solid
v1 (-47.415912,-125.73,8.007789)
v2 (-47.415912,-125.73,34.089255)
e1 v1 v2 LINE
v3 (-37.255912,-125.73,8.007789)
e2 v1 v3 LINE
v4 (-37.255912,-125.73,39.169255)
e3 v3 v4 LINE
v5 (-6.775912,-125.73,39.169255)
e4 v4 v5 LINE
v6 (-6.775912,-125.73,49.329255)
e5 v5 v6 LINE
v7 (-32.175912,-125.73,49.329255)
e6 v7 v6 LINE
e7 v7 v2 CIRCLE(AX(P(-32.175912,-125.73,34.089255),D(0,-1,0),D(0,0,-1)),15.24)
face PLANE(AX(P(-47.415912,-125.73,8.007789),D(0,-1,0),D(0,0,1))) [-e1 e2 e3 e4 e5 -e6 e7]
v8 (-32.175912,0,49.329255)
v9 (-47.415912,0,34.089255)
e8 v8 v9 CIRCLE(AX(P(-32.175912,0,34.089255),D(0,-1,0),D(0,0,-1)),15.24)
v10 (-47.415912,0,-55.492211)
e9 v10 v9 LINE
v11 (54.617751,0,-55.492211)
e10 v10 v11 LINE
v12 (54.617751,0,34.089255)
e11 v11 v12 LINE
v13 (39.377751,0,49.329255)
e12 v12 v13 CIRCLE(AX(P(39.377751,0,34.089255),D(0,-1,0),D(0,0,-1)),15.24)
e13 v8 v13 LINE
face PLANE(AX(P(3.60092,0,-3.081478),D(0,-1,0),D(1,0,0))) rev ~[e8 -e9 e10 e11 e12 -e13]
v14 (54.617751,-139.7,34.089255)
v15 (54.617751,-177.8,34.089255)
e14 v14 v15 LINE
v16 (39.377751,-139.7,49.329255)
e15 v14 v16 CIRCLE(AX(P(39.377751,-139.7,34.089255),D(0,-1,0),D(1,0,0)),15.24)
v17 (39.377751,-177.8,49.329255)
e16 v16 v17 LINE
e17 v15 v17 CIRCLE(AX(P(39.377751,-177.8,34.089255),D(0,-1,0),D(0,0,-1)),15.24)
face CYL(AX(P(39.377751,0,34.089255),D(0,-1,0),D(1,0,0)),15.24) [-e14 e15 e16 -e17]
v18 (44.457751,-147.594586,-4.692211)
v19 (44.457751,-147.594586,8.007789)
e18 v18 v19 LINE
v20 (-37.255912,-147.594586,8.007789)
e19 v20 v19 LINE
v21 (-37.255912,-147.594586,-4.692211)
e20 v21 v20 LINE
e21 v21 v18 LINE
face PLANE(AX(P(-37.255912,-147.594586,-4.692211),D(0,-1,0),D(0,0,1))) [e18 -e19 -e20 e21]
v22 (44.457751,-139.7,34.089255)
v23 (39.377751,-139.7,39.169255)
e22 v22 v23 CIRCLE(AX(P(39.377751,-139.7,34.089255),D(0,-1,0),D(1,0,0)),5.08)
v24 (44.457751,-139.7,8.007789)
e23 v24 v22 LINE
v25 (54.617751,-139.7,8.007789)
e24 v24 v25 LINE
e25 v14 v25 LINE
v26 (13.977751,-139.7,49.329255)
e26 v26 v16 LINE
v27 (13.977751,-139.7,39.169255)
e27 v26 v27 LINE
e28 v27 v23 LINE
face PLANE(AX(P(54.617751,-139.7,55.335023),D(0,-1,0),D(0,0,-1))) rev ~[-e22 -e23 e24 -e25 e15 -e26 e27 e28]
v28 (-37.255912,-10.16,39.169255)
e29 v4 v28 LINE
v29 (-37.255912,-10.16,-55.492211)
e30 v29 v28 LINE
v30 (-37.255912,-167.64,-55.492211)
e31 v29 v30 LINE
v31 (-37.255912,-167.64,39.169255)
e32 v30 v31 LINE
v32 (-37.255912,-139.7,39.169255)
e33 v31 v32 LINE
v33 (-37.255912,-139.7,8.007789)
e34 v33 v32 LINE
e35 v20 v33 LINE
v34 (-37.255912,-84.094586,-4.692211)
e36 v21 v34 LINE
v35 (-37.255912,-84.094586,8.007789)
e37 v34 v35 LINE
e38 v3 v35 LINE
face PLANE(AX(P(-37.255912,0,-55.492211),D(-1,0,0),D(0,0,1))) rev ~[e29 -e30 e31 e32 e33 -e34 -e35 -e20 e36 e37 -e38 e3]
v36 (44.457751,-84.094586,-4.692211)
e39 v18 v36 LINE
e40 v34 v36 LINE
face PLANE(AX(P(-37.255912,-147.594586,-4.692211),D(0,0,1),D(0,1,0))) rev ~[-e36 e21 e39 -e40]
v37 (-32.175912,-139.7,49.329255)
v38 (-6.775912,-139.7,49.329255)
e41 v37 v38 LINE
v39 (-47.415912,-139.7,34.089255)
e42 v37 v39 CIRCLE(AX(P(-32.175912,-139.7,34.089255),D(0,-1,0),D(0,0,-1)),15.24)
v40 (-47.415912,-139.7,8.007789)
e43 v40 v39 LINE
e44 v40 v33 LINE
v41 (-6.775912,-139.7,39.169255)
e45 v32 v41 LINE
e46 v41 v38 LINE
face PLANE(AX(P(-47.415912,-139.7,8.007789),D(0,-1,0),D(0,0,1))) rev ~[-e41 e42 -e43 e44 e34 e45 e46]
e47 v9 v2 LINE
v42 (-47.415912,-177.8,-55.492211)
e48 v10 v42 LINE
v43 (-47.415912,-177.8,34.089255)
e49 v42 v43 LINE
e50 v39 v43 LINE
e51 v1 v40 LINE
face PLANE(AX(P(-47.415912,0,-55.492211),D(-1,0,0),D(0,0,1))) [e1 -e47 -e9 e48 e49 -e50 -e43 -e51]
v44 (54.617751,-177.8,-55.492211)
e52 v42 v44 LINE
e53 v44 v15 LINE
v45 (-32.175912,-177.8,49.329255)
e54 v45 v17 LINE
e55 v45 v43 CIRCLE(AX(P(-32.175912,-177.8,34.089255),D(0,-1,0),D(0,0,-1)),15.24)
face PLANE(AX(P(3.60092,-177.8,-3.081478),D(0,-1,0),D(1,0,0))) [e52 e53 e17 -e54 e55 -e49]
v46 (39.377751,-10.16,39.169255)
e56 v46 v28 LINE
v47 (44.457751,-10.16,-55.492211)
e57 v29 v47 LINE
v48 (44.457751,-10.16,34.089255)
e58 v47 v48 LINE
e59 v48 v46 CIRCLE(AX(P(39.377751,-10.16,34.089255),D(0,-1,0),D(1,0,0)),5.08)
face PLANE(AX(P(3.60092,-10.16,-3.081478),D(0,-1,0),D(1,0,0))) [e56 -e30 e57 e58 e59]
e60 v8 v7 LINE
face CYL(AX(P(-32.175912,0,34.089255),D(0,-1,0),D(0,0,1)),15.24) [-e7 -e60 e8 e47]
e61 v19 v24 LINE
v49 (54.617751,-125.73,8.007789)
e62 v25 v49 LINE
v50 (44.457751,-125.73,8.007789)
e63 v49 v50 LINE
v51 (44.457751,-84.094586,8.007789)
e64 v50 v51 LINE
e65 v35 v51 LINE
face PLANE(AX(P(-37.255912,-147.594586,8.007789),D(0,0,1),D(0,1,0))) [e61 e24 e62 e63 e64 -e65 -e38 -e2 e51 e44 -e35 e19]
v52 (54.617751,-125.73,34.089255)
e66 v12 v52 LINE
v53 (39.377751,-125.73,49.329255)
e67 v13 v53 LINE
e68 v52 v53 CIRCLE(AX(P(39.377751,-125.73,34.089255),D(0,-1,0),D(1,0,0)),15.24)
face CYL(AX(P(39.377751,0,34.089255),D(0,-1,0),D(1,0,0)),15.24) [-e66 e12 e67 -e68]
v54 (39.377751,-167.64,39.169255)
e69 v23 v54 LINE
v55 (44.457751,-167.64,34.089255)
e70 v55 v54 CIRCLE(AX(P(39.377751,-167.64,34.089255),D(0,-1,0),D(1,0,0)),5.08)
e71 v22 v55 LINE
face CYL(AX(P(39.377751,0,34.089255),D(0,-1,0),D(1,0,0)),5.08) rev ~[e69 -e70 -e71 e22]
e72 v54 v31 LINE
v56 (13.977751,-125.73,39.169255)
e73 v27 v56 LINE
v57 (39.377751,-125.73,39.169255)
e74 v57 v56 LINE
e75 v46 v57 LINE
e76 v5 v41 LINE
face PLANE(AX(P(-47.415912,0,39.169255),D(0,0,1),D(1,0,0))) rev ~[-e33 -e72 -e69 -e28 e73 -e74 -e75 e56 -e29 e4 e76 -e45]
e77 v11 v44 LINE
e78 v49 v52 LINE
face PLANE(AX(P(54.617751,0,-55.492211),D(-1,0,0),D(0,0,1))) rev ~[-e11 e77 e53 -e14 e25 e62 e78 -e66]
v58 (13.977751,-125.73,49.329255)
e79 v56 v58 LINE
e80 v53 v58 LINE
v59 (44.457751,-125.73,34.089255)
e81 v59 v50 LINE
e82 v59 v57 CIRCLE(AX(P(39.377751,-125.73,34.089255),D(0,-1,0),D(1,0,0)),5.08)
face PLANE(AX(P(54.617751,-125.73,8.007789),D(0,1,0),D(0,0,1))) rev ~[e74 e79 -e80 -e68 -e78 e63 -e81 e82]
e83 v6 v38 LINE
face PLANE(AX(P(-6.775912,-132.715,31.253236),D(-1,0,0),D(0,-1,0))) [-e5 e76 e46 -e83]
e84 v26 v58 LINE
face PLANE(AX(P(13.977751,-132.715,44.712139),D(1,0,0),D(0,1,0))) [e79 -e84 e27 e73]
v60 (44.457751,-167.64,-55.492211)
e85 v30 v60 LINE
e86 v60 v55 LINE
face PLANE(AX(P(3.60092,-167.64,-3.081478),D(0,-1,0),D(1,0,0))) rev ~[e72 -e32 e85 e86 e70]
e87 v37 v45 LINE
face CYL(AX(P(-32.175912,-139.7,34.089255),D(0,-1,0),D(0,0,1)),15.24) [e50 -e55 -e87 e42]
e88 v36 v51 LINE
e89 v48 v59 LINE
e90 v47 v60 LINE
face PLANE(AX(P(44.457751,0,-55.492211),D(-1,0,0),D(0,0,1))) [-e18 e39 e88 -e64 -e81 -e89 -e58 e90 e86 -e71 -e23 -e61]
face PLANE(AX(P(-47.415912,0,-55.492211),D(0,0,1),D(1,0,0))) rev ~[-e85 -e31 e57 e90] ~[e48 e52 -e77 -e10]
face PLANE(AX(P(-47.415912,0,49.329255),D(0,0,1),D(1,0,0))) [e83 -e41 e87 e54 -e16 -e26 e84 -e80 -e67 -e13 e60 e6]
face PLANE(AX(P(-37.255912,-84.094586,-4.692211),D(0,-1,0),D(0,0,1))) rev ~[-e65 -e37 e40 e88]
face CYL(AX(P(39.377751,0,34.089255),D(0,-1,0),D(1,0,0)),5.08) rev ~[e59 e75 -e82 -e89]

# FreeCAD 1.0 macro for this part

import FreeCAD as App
import Part
import Sketcher

V = App.Vector
Q = App.Units.Quantity


def edges_at(feature, points):
    """Names of the edges that pass closest to the given points."""
    edges = feature.Shape.Edges
    near = lambda p: min(range(len(edges)), key=lambda i: edges[i].distToShape(Part.Vertex(*p))[0])
    return sorted({f"Edge{near(p) + 1}" for p in points})


def faces_at(feature, points):
    """Names of the faces that lie closest to the given points."""
    faces = feature.Shape.Faces
    near = lambda p: min(range(len(faces)), key=lambda i: faces[i].distToShape(Part.Vertex(*p))[0])
    return sorted({f"Face{near(p) + 1}" for p in points})


def add_polygon(sketch, points):
    """Adds a closed chain of lines whose ends are joined by coincident constraints."""
    first, n = sketch.GeometryCount, len(points)
    for a, b in zip(points, points[1:] + points[:1]):
        sketch.addGeometry(Part.LineSegment(App.Vector(*a, 0), App.Vector(*b, 0)), False)
    for i in range(n):
        sketch.addConstraint(Sketcher.Constraint("Coincident", first + i, 2, first + (i + 1) % n, 1))

doc = App.newDocument("Part")
body = doc.addObject("PartDesign::Body", "Body")

# Sketch on XZ plane
sketch1 = body.newObject("Sketcher::SketchObject", "Sketch")
sketch1.AttachmentSupport = (doc.getObject("XZ_Plane"), [""])
sketch1.MapMode = "FlatFace"
add_polygon(sketch1, [(-47, 49), (-47, -55), (55, -55), (55, 49)])  # lines 0-3
sketch1.addConstraint(Sketcher.Constraint("Vertical", 0))
sketch1.addConstraint(Sketcher.Constraint("Horizontal", 1))
sketch1.addConstraint(Sketcher.Constraint("Vertical", 2))
sketch1.addConstraint(Sketcher.Constraint("Horizontal", 3))
sketch1.addConstraint(Sketcher.Constraint("DistanceX", 1, 1, 1, 2, 102.033664))
sketch1.addConstraint(Sketcher.Constraint("DistanceY", 0, 2, 0, 1, 104.821466))
sketch1.addConstraint(Sketcher.Constraint("DistanceY", 0, 2, -1, 1, 55.492211))
sketch1.addConstraint(Sketcher.Constraint("DistanceX", -1, 1, 1, 2, 54.617751))
pad1 = body.newObject("PartDesign::Pad", "Pad")
pad1.Profile = sketch1
pad1.Length = Q("7 in")
doc.recompute()

fillet = body.newObject("PartDesign::Fillet", "Fillet")
fillet.Base = (pad1, edges_at(pad1, [(54.618, -88.9, 49.329)]))
fillet.Radius = Q("0.6 in")
doc.recompute()

thickness = body.newObject("PartDesign::Thickness", "Thickness")
thickness.Base = (fillet, faces_at(fillet, [(3.601, -88.9, -55.492)]))
thickness.Value = Q("0.4 in")
thickness.Reversed = True
thickness.Join = "Arc"

# Sketch on YZ plane
sketch2 = body.newObject("Sketcher::SketchObject", "Sketch001")
sketch2.AttachmentSupport = (doc.getObject("YZ_Plane"), [""])
sketch2.MapMode = "FlatFace"
sketch2.AttachmentOffset = App.Placement(V(0, 0, 54.617751), App.Rotation())
add_polygon(sketch2, [(-140, 55), (-140, 8), (-126, 8), (-126, 55)])  # lines 0-3
sketch2.addConstraint(Sketcher.Constraint("Vertical", 0))
sketch2.addConstraint(Sketcher.Constraint("Horizontal", 1))
sketch2.addConstraint(Sketcher.Constraint("Vertical", 2))
sketch2.addConstraint(Sketcher.Constraint("Horizontal", 3))
sketch2.addConstraint(Sketcher.Constraint("DistanceX", 1, 1, 1, 2, Q("0.55 in")))
sketch2.addConstraint(Sketcher.Constraint("DistanceX", 0, 2, -1, 1, Q("5.5 in")))
sketch2.addConstraint(Sketcher.Constraint("DistanceY", 0, 2, 0, 1, 47.327234))
sketch2.addConstraint(Sketcher.Constraint("DistanceY", -1, 1, 0, 2, 8.007789))
pocket1 = body.newObject("PartDesign::Pocket", "Pocket")
pocket1.Profile = sketch2
pocket1.Length = Q("1.6 in")

# Sketch on YZ plane
sketch3 = body.newObject("Sketcher::SketchObject", "Sketch002")
sketch3.AttachmentSupport = (doc.getObject("YZ_Plane"), [""])
sketch3.MapMode = "FlatFace"
sketch3.AttachmentOffset = App.Placement(V(0, 0, -47.415912), App.Rotation())
add_polygon(sketch3, [(-126, 54), (-126, 8), (-140, 8), (-140, 54)])  # lines 0-3
sketch3.addConstraint(Sketcher.Constraint("Vertical", 0))
sketch3.addConstraint(Sketcher.Constraint("Horizontal", 1))
sketch3.addConstraint(Sketcher.Constraint("Vertical", 2))
sketch3.addConstraint(Sketcher.Constraint("Horizontal", 3))
sketch3.addConstraint(Sketcher.Constraint("DistanceX", 1, 2, 1, 1, Q("0.55 in")))
sketch3.addConstraint(Sketcher.Constraint("DistanceX", 1, 2, -1, 1, Q("5.5 in")))
sketch3.addConstraint(Sketcher.Constraint("DistanceY", 0, 2, 0, 1, 46.490895))
sketch3.addConstraint(Sketcher.Constraint("DistanceY", -1, 1, 0, 2, 8.007789))
pocket2 = body.newObject("PartDesign::Pocket", "Pocket001")
pocket2.Profile = sketch3
pocket2.Length = Q("1.6 in")
pocket2.Reversed = True
doc.recompute()

fillet2 = body.newObject("PartDesign::Fillet", "Fillet001")
fillet2.Base = (pocket2, edges_at(pocket2, [(-47.416, -62.865, 49.329), (-47.416, -158.75, 49.329)]))
fillet2.Radius = Q("0.6 in")

# Sketch on YZ plane
sketch4 = body.newObject("Sketcher::SketchObject", "Sketch003")
sketch4.AttachmentSupport = (doc.getObject("YZ_Plane"), [""])
sketch4.MapMode = "FlatFace"
sketch4.AttachmentOffset = App.Placement(V(0, 0, -37.255912), App.Rotation())
add_polygon(sketch4, [(-148, 8), (-148, -5), (-84, -5), (-84, 8)])  # lines 0-3
sketch4.addConstraint(Sketcher.Constraint("Vertical", 0))
sketch4.addConstraint(Sketcher.Constraint("Horizontal", 1))
sketch4.addConstraint(Sketcher.Constraint("Vertical", 2))
sketch4.addConstraint(Sketcher.Constraint("Horizontal", 3))
sketch4.addConstraint(Sketcher.Constraint("DistanceX", 1, 1, 1, 2, Q("2.5 in")))
sketch4.addConstraint(Sketcher.Constraint("DistanceY", 0, 2, 0, 1, Q("0.5 in")))
sketch4.addConstraint(Sketcher.Constraint("DistanceY", 0, 2, -1, 1, 4.692211))
sketch4.addConstraint(Sketcher.Constraint("DistanceX", 0, 2, -1, 1, 147.594586))
pad2 = body.newObject("PartDesign::Pad", "Pad001")
pad2.Profile = sketch4
pad2.Length = Q("3.59 in")

doc.recompute()
